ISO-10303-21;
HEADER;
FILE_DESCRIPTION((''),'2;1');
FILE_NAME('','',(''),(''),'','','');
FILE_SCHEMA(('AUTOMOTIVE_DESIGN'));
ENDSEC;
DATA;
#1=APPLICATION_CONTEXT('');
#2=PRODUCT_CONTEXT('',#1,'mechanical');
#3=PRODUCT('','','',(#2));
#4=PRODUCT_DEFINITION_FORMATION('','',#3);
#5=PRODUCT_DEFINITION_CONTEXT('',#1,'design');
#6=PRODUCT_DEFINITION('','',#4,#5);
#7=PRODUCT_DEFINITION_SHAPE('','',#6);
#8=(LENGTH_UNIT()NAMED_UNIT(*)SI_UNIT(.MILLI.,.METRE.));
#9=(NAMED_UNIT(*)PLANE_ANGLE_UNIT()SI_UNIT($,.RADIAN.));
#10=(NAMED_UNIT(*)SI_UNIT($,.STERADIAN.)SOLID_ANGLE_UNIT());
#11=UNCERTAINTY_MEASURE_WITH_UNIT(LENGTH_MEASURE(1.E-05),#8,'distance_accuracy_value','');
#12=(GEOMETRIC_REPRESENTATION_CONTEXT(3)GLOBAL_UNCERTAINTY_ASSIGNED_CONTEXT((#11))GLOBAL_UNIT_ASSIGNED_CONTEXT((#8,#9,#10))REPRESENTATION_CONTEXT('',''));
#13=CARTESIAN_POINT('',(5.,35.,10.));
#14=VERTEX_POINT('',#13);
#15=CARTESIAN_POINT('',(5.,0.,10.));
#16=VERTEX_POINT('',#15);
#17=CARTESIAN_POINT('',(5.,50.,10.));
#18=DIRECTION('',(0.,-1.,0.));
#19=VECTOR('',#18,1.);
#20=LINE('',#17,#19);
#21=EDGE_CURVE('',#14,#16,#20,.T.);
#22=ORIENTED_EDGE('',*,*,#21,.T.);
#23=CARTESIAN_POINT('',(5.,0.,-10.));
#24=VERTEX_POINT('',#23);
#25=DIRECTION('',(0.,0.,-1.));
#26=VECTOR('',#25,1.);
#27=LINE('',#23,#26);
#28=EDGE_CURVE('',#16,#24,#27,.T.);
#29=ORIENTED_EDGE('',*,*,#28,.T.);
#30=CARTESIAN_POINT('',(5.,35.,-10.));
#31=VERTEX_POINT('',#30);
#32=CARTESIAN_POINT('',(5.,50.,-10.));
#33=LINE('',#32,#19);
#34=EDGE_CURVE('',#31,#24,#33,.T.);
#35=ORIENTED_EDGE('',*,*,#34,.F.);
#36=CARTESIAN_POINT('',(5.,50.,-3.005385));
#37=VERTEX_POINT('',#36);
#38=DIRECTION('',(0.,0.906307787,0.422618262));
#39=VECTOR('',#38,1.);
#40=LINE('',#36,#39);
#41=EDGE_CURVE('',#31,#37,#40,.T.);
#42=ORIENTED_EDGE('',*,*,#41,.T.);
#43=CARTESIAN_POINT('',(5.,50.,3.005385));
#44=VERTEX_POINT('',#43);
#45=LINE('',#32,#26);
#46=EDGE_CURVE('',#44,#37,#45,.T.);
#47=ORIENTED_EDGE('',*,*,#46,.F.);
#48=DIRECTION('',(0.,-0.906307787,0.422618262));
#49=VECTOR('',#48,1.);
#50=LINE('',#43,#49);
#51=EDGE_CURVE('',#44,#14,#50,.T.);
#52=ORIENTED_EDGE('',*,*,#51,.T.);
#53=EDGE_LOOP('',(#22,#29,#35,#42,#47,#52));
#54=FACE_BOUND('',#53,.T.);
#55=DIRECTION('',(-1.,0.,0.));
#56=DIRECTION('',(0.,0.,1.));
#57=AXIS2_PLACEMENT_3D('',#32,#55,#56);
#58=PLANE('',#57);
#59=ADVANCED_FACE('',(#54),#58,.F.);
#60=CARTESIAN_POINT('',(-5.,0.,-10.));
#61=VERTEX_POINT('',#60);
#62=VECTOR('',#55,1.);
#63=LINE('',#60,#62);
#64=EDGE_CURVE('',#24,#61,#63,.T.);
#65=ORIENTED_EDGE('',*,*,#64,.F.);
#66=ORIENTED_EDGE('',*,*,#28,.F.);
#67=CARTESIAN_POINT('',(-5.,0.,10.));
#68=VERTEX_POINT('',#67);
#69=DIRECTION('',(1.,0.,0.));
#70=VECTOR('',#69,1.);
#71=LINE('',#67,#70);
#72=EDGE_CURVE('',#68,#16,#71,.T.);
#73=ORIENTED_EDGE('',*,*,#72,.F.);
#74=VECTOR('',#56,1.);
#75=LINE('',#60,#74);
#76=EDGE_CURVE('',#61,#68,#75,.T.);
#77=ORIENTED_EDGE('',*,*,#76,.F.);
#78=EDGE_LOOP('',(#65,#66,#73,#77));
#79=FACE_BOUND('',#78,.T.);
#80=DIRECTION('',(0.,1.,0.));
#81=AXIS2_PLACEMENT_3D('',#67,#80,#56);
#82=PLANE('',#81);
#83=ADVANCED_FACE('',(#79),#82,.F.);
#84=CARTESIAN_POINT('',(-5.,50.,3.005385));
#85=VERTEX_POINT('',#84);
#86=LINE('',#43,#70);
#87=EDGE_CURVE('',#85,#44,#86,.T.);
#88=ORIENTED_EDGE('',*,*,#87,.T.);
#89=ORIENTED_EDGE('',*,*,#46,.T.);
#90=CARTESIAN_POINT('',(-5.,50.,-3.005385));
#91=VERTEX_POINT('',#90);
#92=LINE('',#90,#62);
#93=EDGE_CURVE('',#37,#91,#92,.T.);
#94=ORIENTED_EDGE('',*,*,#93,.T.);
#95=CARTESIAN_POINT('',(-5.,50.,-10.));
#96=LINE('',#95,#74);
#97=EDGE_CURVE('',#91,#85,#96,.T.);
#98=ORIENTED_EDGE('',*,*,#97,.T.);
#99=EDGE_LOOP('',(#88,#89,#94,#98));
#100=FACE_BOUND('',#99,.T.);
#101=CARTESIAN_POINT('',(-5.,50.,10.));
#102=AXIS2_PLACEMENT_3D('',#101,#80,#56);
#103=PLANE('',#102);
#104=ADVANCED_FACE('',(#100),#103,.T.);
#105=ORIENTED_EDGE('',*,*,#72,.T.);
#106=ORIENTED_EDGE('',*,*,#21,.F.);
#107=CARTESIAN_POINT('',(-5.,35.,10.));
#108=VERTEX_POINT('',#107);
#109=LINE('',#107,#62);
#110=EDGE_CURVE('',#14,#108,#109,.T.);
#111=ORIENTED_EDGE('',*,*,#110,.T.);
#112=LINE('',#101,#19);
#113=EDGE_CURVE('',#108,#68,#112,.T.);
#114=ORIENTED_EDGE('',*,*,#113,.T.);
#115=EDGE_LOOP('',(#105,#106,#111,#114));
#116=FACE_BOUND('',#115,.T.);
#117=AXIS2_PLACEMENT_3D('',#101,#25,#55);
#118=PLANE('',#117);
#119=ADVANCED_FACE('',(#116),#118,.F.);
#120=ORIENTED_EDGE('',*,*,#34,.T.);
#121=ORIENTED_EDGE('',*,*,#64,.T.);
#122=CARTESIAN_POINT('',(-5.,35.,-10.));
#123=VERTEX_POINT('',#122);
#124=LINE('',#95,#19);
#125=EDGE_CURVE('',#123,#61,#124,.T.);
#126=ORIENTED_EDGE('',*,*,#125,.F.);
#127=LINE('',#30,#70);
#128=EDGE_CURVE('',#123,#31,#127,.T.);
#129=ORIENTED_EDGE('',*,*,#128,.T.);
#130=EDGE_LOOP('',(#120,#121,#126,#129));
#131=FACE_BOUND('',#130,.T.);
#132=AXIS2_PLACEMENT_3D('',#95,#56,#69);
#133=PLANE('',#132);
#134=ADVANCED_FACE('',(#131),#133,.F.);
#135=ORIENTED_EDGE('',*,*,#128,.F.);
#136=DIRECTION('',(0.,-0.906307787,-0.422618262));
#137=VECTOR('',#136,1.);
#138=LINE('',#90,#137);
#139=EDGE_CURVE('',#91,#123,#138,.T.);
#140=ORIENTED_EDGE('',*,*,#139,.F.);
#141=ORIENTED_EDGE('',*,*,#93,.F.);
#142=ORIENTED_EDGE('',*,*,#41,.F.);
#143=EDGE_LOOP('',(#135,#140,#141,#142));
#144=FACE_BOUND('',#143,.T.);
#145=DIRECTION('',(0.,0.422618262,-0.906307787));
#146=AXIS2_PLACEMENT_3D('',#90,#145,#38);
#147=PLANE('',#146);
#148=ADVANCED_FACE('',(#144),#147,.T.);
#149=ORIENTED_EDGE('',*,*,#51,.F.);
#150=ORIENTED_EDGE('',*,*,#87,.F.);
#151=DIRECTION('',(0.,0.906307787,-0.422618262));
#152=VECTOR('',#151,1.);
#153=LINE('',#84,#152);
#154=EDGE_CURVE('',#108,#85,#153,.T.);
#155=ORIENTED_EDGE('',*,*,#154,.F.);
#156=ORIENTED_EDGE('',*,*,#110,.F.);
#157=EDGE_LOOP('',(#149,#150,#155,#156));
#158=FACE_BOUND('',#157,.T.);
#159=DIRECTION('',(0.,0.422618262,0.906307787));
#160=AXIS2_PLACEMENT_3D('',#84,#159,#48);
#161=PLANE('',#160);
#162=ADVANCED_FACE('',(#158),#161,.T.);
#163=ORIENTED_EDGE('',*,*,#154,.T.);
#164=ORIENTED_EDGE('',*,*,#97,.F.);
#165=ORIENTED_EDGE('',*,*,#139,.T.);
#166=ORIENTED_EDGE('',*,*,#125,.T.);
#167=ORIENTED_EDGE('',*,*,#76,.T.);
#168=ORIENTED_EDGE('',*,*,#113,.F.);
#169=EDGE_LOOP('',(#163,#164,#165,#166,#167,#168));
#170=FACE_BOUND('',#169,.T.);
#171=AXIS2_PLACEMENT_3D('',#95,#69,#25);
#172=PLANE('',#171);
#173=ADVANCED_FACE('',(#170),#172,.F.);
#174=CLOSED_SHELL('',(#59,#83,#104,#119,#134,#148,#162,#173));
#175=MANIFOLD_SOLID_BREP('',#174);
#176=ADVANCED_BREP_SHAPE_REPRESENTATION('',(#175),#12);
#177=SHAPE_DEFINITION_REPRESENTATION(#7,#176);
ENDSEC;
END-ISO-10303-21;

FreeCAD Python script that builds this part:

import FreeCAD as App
import Part
import Sketcher


def edges_at(feature, points):
    """Names of the edges that pass closest to the given points."""
    edges = feature.Shape.Edges
    near = lambda p: min(range(len(edges)), key=lambda i: edges[i].distToShape(Part.Vertex(*p))[0])
    return sorted({f"Edge{near(p) + 1}" for p in points})

doc = App.newDocument("Part")
params = doc.addObject("Spreadsheet::Sheet", "Params")
for row, (alias, value) in enumerate([
    ("sketch1_width", "10 mm"),
    ("sketch1_height", "20 mm"),
    ("pad1_length", "50 mm"),
    ("chamfer_size", "15 mm"),
    ("chamfer_size2", "6.994615 mm"),
    ("chamfer2_size", "15 mm"),
    ("chamfer2_size2", "6.994615 mm"),
], start=1):
    params.set(f"A{row}", alias)
    params.set(f"B{row}", "=" + value)
    params.setAlias(f"B{row}", alias)

body = doc.addObject("PartDesign::Body", "Body")

# Sketch on XZ plane
sketch1 = doc.addObject("Sketcher::SketchObject", "Sketch")
body.addObject(sketch1)
sketch1.AttachmentSupport = (doc.XZ_Plane, [""])
sketch1.MapMode = "FlatFace"
sketch1.addGeometry(Part.LineSegment(App.Vector(-5, -10, 0), App.Vector(-5, 10, 0)), False)
sketch1.addGeometry(Part.LineSegment(App.Vector(-5, 10, 0), App.Vector(5, 10, 0)), False)
sketch1.addGeometry(Part.LineSegment(App.Vector(5, 10, 0), App.Vector(5, -10, 0)), False)
sketch1.addGeometry(Part.LineSegment(App.Vector(5, -10, 0), App.Vector(-5, -10, 0)), False)
sketch1.addConstraint(Sketcher.Constraint("Coincident", 0, 2, 1, 1))
sketch1.addConstraint(Sketcher.Constraint("Coincident", 1, 2, 2, 1))
sketch1.addConstraint(Sketcher.Constraint("Coincident", 2, 2, 3, 1))
sketch1.addConstraint(Sketcher.Constraint("Coincident", 3, 2, 0, 1))
sketch1.addConstraint(Sketcher.Constraint("Vertical", 0))
sketch1.addConstraint(Sketcher.Constraint("Horizontal", 1))
sketch1.addConstraint(Sketcher.Constraint("Vertical", 2))
sketch1.addConstraint(Sketcher.Constraint("Horizontal", 3))
sketch1.addConstraint(Sketcher.Constraint("Symmetric", 0, 2, 2, 2, -1, 1))
sketch1.addConstraint(Sketcher.Constraint("DistanceX", 1, 1, 1, 2, 10.0))
sketch1.addConstraint(Sketcher.Constraint("DistanceY", 0, 1, 0, 2, 20.0))
sketch1.setExpression("Constraints[9]", "Params.sketch1_width")
sketch1.setExpression("Constraints[10]", "Params.sketch1_height")
pad1 = doc.addObject("PartDesign::Pad", "Pad")
body.addObject(pad1)
pad1.Profile = sketch1
pad1.setExpression("Length", "Params.pad1_length")
pad1.Reversed = True
doc.recompute()

chamfer = doc.addObject("PartDesign::Chamfer", "Chamfer")
body.addObject(chamfer)
chamfer.Base = (pad1, edges_at(pad1, [(0, 50, 10)]))
chamfer.ChamferType = "Two distances"
chamfer.setExpression("Size", "Params.chamfer_size")
chamfer.setExpression("Size2", "Params.chamfer_size2")
doc.recompute()

chamfer2 = doc.addObject("PartDesign::Chamfer", "Chamfer001")
body.addObject(chamfer2)
chamfer2.Base = (chamfer, edges_at(chamfer, [(0, 50, -10)]))
chamfer2.ChamferType = "Two distances"
chamfer2.setExpression("Size", "Params.chamfer2_size")
chamfer2.setExpression("Size2", "Params.chamfer2_size2")
chamfer2.FlipDirection = True

doc.recompute()
